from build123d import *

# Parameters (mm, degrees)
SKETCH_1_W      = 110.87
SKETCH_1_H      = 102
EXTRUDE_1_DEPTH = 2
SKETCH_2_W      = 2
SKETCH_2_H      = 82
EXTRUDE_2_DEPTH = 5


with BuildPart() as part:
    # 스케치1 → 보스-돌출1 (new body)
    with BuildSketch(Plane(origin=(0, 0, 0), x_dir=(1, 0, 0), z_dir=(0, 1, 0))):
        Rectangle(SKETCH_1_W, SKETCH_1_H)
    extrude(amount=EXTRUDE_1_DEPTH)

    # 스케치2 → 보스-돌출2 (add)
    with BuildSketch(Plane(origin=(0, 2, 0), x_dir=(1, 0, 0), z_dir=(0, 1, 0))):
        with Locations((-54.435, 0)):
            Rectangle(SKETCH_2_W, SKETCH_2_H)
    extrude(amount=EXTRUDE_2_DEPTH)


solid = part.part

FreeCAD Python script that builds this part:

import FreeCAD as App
import Part
import Sketcher
Q = App.Units.Quantity

doc = App.newDocument("Part")
body = doc.addObject("PartDesign::Body", "Body")

sketch1 = body.newObject("Sketcher::SketchObject", "Sketch")
sketch1.AttachmentSupport = (doc.getObject("XZ_Plane"), [""])
sketch1.MapMode = "FlatFace"
sketch1.addGeometry([
    Part.LineSegment(App.Vector(-55, -51, 0), App.Vector(-55, 51, 0)),
    Part.LineSegment(App.Vector(-55, 51, 0), App.Vector(55, 51, 0)),
    Part.LineSegment(App.Vector(55, 51, 0), App.Vector(55, -51, 0)),
    Part.LineSegment(App.Vector(55, -51, 0), App.Vector(-55, -51, 0)),
], False)
sketch1.addConstraint([
    Sketcher.Constraint("Coincident", 0, 2, 1, 1),
    Sketcher.Constraint("Coincident", 1, 2, 2, 1),
    Sketcher.Constraint("Coincident", 2, 2, 3, 1),
    Sketcher.Constraint("Coincident", 3, 2, 0, 1),
    Sketcher.Constraint("Vertical", 0),
    Sketcher.Constraint("Horizontal", 1),
    Sketcher.Constraint("Vertical", 2),
    Sketcher.Constraint("Horizontal", 3),
    Sketcher.Constraint("Symmetric", 0, 2, 2, 2, -1, 1),
    Sketcher.Constraint("DistanceY", 0, 1, 0, 2, Q("102 mm")),
    Sketcher.Constraint("DistanceX", 1, 1, 1, 2, Q("110.87 mm")),
])
pad1 = body.newObject("PartDesign::Pad", "Pad")
pad1.Profile = sketch1
pad1.Length = 2
pad1.Reversed = True

sketch2 = body.newObject("Sketcher::SketchObject", "Sketch001")
sketch2.AttachmentSupport = (doc.getObject("XZ_Plane"), [""])
sketch2.MapMode = "FlatFace"
sketch2.AttachmentOffset = App.Placement(App.Vector(0, 0, -2), App.Rotation())
sketch2.addGeometry([
    Part.LineSegment(App.Vector(-55.4, -41, 0), App.Vector(-55.4, 41, 0)),
    Part.LineSegment(App.Vector(-55.4, 41, 0), App.Vector(-53.4, 41, 0)),
    Part.LineSegment(App.Vector(-53.4, 41, 0), App.Vector(-53.4, -41, 0)),
    Part.LineSegment(App.Vector(-53.4, -41, 0), App.Vector(-55.4, -41, 0)),
], False)
sketch2.addConstraint([
    Sketcher.Constraint("Coincident", 0, 2, 1, 1),
    Sketcher.Constraint("Coincident", 1, 2, 2, 1),
    Sketcher.Constraint("Coincident", 2, 2, 3, 1),
    Sketcher.Constraint("Coincident", 3, 2, 0, 1),
    Sketcher.Constraint("Vertical", 0),
    Sketcher.Constraint("Horizontal", 1),
    Sketcher.Constraint("Vertical", 2),
    Sketcher.Constraint("Horizontal", 3),
    Sketcher.Constraint("DistanceX", 1, 1, 1, 2, Q("2 mm")),
    Sketcher.Constraint("DistanceY", 0, 1, 0, 2, Q("82 mm")),
    Sketcher.Constraint("DistanceY", -1, 1, 0, 2, Q("41 mm")),
    Sketcher.Constraint("DistanceX", 0, 2, -1, 1, Q("55.435 mm")),
])
pad2 = body.newObject("PartDesign::Pad", "Pad001")
pad2.Profile = sketch2
pad2.Length = 5
pad2.Reversed = True

doc.recompute()
